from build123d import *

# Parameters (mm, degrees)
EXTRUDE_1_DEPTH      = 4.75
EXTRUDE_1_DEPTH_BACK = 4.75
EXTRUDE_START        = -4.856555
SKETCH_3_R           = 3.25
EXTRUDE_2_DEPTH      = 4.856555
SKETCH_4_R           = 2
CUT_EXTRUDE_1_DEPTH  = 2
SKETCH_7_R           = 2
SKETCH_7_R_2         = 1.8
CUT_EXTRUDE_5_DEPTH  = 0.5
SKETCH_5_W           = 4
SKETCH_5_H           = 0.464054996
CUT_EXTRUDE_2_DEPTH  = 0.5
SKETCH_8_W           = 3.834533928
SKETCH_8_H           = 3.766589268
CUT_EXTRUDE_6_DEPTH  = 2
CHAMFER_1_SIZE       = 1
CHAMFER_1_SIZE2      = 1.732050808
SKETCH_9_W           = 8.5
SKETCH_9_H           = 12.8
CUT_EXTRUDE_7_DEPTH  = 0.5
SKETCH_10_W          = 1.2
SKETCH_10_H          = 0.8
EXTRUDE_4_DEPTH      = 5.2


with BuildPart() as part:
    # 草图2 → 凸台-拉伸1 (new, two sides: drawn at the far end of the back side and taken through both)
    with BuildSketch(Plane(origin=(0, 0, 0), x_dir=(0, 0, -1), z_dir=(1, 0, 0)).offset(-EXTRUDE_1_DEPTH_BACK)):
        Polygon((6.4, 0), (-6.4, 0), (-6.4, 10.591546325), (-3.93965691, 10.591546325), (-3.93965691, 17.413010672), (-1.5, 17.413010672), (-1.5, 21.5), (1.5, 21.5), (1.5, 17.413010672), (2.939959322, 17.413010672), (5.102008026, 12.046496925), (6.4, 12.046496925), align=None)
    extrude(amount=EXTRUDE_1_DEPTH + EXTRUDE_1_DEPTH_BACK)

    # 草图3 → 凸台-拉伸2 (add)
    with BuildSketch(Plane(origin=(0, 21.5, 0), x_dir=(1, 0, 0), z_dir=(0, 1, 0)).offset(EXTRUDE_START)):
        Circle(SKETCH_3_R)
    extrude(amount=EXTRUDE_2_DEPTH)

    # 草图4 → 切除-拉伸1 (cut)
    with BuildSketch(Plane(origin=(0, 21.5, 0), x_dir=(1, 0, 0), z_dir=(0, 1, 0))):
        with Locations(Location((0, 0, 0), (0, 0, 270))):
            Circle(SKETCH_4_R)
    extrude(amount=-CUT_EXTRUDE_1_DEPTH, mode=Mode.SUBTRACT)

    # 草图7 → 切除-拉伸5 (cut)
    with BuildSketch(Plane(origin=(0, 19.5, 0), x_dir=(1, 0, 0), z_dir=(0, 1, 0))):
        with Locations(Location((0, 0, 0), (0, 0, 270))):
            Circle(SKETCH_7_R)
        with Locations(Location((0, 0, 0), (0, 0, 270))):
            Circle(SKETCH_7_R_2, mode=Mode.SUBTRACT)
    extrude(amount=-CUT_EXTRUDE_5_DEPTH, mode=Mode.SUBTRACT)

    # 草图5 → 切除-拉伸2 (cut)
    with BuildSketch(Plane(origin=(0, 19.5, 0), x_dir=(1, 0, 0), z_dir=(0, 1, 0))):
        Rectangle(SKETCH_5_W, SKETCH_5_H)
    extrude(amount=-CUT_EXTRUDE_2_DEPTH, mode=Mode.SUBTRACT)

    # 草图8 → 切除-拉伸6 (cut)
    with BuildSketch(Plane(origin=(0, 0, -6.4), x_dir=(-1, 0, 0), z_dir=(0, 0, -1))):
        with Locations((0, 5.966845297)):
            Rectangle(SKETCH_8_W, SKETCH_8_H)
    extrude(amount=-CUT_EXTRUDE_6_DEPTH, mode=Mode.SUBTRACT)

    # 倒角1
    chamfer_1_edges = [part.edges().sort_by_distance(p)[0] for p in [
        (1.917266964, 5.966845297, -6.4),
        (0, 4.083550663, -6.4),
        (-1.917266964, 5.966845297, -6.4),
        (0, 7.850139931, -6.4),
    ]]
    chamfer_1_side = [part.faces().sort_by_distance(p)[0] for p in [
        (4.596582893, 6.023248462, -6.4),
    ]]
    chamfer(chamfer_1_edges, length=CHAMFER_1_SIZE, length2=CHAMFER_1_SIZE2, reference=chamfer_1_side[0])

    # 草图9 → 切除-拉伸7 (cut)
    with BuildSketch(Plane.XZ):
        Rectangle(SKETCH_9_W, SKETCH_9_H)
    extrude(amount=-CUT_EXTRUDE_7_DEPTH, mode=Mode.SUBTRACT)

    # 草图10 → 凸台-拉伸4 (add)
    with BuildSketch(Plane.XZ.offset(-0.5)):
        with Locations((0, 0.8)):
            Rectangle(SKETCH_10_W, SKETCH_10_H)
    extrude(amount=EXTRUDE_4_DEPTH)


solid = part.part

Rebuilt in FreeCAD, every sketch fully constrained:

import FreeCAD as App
import Part
import Sketcher
from FreeCAD import Vector
Q = App.Units.Quantity


def edges_at(feature, points):
    """Names of the edges that pass closest to the given points."""
    edges = feature.Shape.Edges
    near = lambda p: min(range(len(edges)), key=lambda i: edges[i].distToShape(Part.Vertex(*p))[0])
    return sorted({f"Edge{near(p) + 1}" for p in points})

doc = App.newDocument("Part")
params = doc.addObject("Spreadsheet::Sheet", "Params")
for row, (alias, value) in enumerate([
    ("sketch1_height", "3 mm"),
    ("sketch1_height2", "12.8 mm"),
    ("pad1_length", "4.75 mm"),
    ("pad1_length2", "4.75 mm"),
    ("sketch2_diameter", "6.5 mm"),
    ("pad2_length", "4.856555 mm"),
    ("sketch3_diameter", "4 mm"),
    ("pocket1_length", "2 mm"),
    ("sketch4_diameter", "4 mm"),
    ("sketch4_diameter2", "3.6 mm"),
    ("pocket2_length", "0.5 mm"),
    ("sketch5_width", "4 mm"),
    ("pocket3_length", "0.5 mm"),
    ("pocket4_length", "2 mm"),
    ("chamfer_size", "1 mm"),
    ("chamfer_size2", "1.732051 mm"),
    ("sketch7_width", "8.5 mm"),
    ("sketch7_height", "12.8 mm"),
    ("pocket5_length", "0.5 mm"),
    ("sketch8_width", "1.2 mm"),
    ("sketch8_height", "0.8 mm"),
    ("pad3_length", "5.2 mm"),
], start=1):
    params.set(f"A{row}", alias)
    params.set(f"B{row}", "=" + value)
    params.setAlias(f"B{row}", alias)

body = doc.addObject("PartDesign::Body", "Body")

sketch1 = doc.addObject("Sketcher::SketchObject", "Sketch")
body.addObject(sketch1)
sketch1.AttachmentSupport = (doc.YZ_Plane, [""])
sketch1.MapMode = "FlatFace"
sketch1.addGeometry([
    Part.LineSegment(Vector(0, 6.4, 0), Vector(0, -6.4, 0)),
    Part.LineSegment(Vector(0, -6.4, 0), Vector(12.046497, -6.4, 0)),
    Part.LineSegment(Vector(12.046497, -6.4, 0), Vector(12.046497, -5.102008, 0)),
    Part.LineSegment(Vector(12.046497, -5.102008, 0), Vector(17.413011, -2.939959, 0)),
    Part.LineSegment(Vector(17.413011, -2.939959, 0), Vector(17.413011, -1.5, 0)),
    Part.LineSegment(Vector(17.413011, -1.5, 0), Vector(21.5, -1.5, 0)),
    Part.LineSegment(Vector(21.5, -1.5, 0), Vector(21.5, 1.5, 0)),
    Part.LineSegment(Vector(21.5, 1.5, 0), Vector(17.413011, 1.5, 0)),
    Part.LineSegment(Vector(17.413011, 1.5, 0), Vector(17.413011, 3.939657, 0)),
    Part.LineSegment(Vector(17.413011, 3.939657, 0), Vector(10.591546, 3.939657, 0)),
    Part.LineSegment(Vector(10.591546, 3.939657, 0), Vector(10.591546, 6.4, 0)),
    Part.LineSegment(Vector(10.591546, 6.4, 0), Vector(0, 6.4, 0)),
], False)
sketch1.addConstraint([
    Sketcher.Constraint("Coincident", 0, 2, 1, 1),
    Sketcher.Constraint("Coincident", 1, 2, 2, 1),
    Sketcher.Constraint("Coincident", 2, 2, 3, 1),
    Sketcher.Constraint("Coincident", 3, 2, 4, 1),
    Sketcher.Constraint("Coincident", 4, 2, 5, 1),
    Sketcher.Constraint("Coincident", 5, 2, 6, 1),
    Sketcher.Constraint("Coincident", 6, 2, 7, 1),
    Sketcher.Constraint("Coincident", 7, 2, 8, 1),
    Sketcher.Constraint("Coincident", 8, 2, 9, 1),
    Sketcher.Constraint("Coincident", 9, 2, 10, 1),
    Sketcher.Constraint("Coincident", 10, 2, 11, 1),
    Sketcher.Constraint("Coincident", 11, 2, 0, 1),
    Sketcher.Constraint("Vertical", 0),
    Sketcher.Constraint("Horizontal", 1),
    Sketcher.Constraint("Vertical", 2),
    Sketcher.Constraint("Vertical", 4),
    Sketcher.Constraint("Horizontal", 5),
    Sketcher.Constraint("Vertical", 6),
    Sketcher.Constraint("Horizontal", 7),
    Sketcher.Constraint("Vertical", 8),
    Sketcher.Constraint("Horizontal", 9),
    Sketcher.Constraint("Vertical", 10),
    Sketcher.Constraint("Horizontal", 11),
    Sketcher.Constraint("Symmetric", 0, 2, 11, 2, -1, 1),
    Sketcher.Constraint("Symmetric", 4, 2, 7, 2, -1),
    Sketcher.Constraint("DistanceY", 6, 1, 6, 2, Q("3 mm")),
    Sketcher.Constraint("DistanceY", 0, 2, 0, 1, Q("12.8 mm")),
    Sketcher.Constraint("DistanceX", -1, 1, 5, 2, Q("21.5 mm")),
    Sketcher.Constraint("DistanceX", 5, 1, 5, 2, Q("4.086989 mm")),
    Sketcher.Constraint("DistanceY", 2, 1, 2, 2, Q("1.297992 mm")),
    Sketcher.Constraint("DistanceY", 4, 1, 4, 2, Q("1.439959 mm")),
    Sketcher.Constraint("DistanceX", 1, 1, 1, 2, Q("12.046497 mm")),
    Sketcher.Constraint("DistanceX", 9, 2, 9, 1, Q("6.821464 mm")),
    Sketcher.Constraint("DistanceY", 8, 1, 8, 2, Q("2.439657 mm")),
])
sketch1.setExpression("Constraints[25]", "Params.sketch1_height")
sketch1.setExpression("Constraints[26]", "Params.sketch1_height2")
pad1 = doc.addObject("PartDesign::Pad", "Pad")
body.addObject(pad1)
pad1.Profile = sketch1
pad1.Type = "TwoLengths"
pad1.setExpression("Length", "Params.pad1_length")
pad1.setExpression("Length2", "Params.pad1_length2")

sketch2 = doc.addObject("Sketcher::SketchObject", "Sketch001")
body.addObject(sketch2)
sketch2.AttachmentSupport = (doc.XZ_Plane, [""])
sketch2.MapMode = "FlatFace"
sketch2.AttachmentOffset = App.Placement(Vector(0, 0, -16.643445), App.Rotation())
sketch2.addGeometry(Part.Circle(Vector(0, 0, 0), Vector(0, 0, 1), 3.25), False)
sketch2.addConstraint([
    Sketcher.Constraint("Coincident", 0, 3, -1, 1),
    Sketcher.Constraint("Diameter", 0, Q("6.5 mm")),
])
sketch2.setExpression("Constraints[1]", "Params.sketch2_diameter")
pad2 = doc.addObject("PartDesign::Pad", "Pad001")
body.addObject(pad2)
pad2.Profile = sketch2
pad2.setExpression("Length", "Params.pad2_length")
pad2.Reversed = True

sketch3 = doc.addObject("Sketcher::SketchObject", "Sketch002")
body.addObject(sketch3)
sketch3.AttachmentSupport = (doc.XZ_Plane, [""])
sketch3.MapMode = "FlatFace"
sketch3.AttachmentOffset = App.Placement(Vector(0, 0, -21.5), App.Rotation())
sketch3.addGeometry(Part.Circle(Vector(0, 0, 0), Vector(0, 0, 1), 2), False)
sketch3.addConstraint([
    Sketcher.Constraint("Coincident", 0, 3, -1, 1),
    Sketcher.Constraint("Diameter", 0, Q("4 mm")),
])
sketch3.setExpression("Constraints[1]", "Params.sketch3_diameter")
pocket1 = doc.addObject("PartDesign::Pocket", "Pocket")
body.addObject(pocket1)
pocket1.Profile = sketch3
pocket1.setExpression("Length", "Params.pocket1_length")
pocket1.Reversed = True

sketch4 = doc.addObject("Sketcher::SketchObject", "Sketch003")
body.addObject(sketch4)
sketch4.AttachmentSupport = (doc.XZ_Plane, [""])
sketch4.MapMode = "FlatFace"
sketch4.AttachmentOffset = App.Placement(Vector(0, 0, -19.5), App.Rotation())
sketch4.addGeometry([
    Part.Circle(Vector(0, 0, 0), Vector(0, 0, 1), 2),
    Part.Circle(Vector(0, 0, 0), Vector(0, 0, 1), 1.8),
], False)
sketch4.addConstraint([
    Sketcher.Constraint("Coincident", 0, 3, -1, 1),
    Sketcher.Constraint("Coincident", 1, 3, -1, 1),
    Sketcher.Constraint("Diameter", 0, Q("4 mm")),
    Sketcher.Constraint("Diameter", 1, Q("3.6 mm")),
])
sketch4.setExpression("Constraints[2]", "Params.sketch4_diameter")
sketch4.setExpression("Constraints[3]", "Params.sketch4_diameter2")
pocket2 = doc.addObject("PartDesign::Pocket", "Pocket001")
body.addObject(pocket2)
pocket2.Profile = sketch4
pocket2.setExpression("Length", "Params.pocket2_length")
pocket2.Reversed = True

sketch5 = doc.addObject("Sketcher::SketchObject", "Sketch004")
body.addObject(sketch5)
sketch5.AttachmentSupport = (doc.XZ_Plane, [""])
sketch5.MapMode = "FlatFace"
sketch5.AttachmentOffset = App.Placement(Vector(0, 0, -19.5), App.Rotation())
sketch5.addGeometry([
    Part.LineSegment(Vector(-2, -0.232027, 0), Vector(-2, 0.232027, 0)),
    Part.LineSegment(Vector(-2, 0.232027, 0), Vector(2, 0.232027, 0)),
    Part.LineSegment(Vector(2, 0.232027, 0), Vector(2, -0.232027, 0)),
    Part.LineSegment(Vector(2, -0.232027, 0), Vector(-2, -0.232027, 0)),
], False)
sketch5.addConstraint([
    Sketcher.Constraint("Coincident", 0, 2, 1, 1),
    Sketcher.Constraint("Coincident", 1, 2, 2, 1),
    Sketcher.Constraint("Coincident", 2, 2, 3, 1),
    Sketcher.Constraint("Coincident", 3, 2, 0, 1),
    Sketcher.Constraint("Vertical", 0),
    Sketcher.Constraint("Horizontal", 1),
    Sketcher.Constraint("Vertical", 2),
    Sketcher.Constraint("Horizontal", 3),
    Sketcher.Constraint("Symmetric", 0, 2, 2, 2, -1, 1),
    Sketcher.Constraint("DistanceX", 1, 1, 1, 2, Q("4 mm")),
    Sketcher.Constraint("DistanceY", 0, 1, 0, 2, Q("0.464055 mm")),
])
sketch5.setExpression("Constraints[9]", "Params.sketch5_width")
pocket3 = doc.addObject("PartDesign::Pocket", "Pocket002")
body.addObject(pocket3)
pocket3.Profile = sketch5
pocket3.setExpression("Length", "Params.pocket3_length")
pocket3.Reversed = True

sketch6 = doc.addObject("Sketcher::SketchObject", "Sketch005")
body.addObject(sketch6)
sketch6.AttachmentSupport = (doc.XY_Plane, [""])
sketch6.MapMode = "FlatFace"
sketch6.AttachmentOffset = App.Placement(Vector(0, 0, -6.4), App.Rotation())
sketch6.addGeometry([
    Part.LineSegment(Vector(1.917267, 7.85014, 0), Vector(1.917267, 4.083551, 0)),
    Part.LineSegment(Vector(1.917267, 4.083551, 0), Vector(-1.917267, 4.083551, 0)),
    Part.LineSegment(Vector(-1.917267, 4.083551, 0), Vector(-1.917267, 7.85014, 0)),
    Part.LineSegment(Vector(-1.917267, 7.85014, 0), Vector(1.917267, 7.85014, 0)),
], False)
sketch6.addConstraint([
    Sketcher.Constraint("Coincident", 0, 2, 1, 1),
    Sketcher.Constraint("Coincident", 1, 2, 2, 1),
    Sketcher.Constraint("Coincident", 2, 2, 3, 1),
    Sketcher.Constraint("Coincident", 3, 2, 0, 1),
    Sketcher.Constraint("Vertical", 0),
    Sketcher.Constraint("Horizontal", 1),
    Sketcher.Constraint("Vertical", 2),
    Sketcher.Constraint("Horizontal", 3),
    Sketcher.Constraint("DistanceY", 0, 2, 0, 1, Q("3.766589 mm")),
    Sketcher.Constraint("DistanceX", 1, 2, 1, 1, Q("3.834534 mm")),
    Sketcher.Constraint("DistanceY", -1, 1, 0, 2, Q("4.083551 mm")),
    Sketcher.Constraint("DistanceX", -1, 1, 0, 2, Q("1.917267 mm")),
])
pocket4 = doc.addObject("PartDesign::Pocket", "Pocket003")
body.addObject(pocket4)
pocket4.Profile = sketch6
pocket4.setExpression("Length", "Params.pocket4_length")
pocket4.Reversed = True
doc.recompute()

chamfer = doc.addObject("PartDesign::Chamfer", "Chamfer")
body.addObject(chamfer)
chamfer.Base = (pocket4, edges_at(pocket4, [
    (1.917, 5.967, -6.4),
    (0, 4.084, -6.4),
    (-1.917, 5.967, -6.4),
    (0, 7.85, -6.4),
]))
chamfer.ChamferType = "Two distances"
chamfer.setExpression("Size", "Params.chamfer_size")
chamfer.setExpression("Size2", "Params.chamfer_size2")

sketch7 = doc.addObject("Sketcher::SketchObject", "Sketch006")
body.addObject(sketch7)
sketch7.AttachmentSupport = (doc.XZ_Plane, [""])
sketch7.MapMode = "FlatFace"
sketch7.addGeometry([
    Part.LineSegment(Vector(-4.25, 6.4, 0), Vector(-4.25, -6.4, 0)),
    Part.LineSegment(Vector(-4.25, -6.4, 0), Vector(4.25, -6.4, 0)),
    Part.LineSegment(Vector(4.25, -6.4, 0), Vector(4.25, 6.4, 0)),
    Part.LineSegment(Vector(4.25, 6.4, 0), Vector(-4.25, 6.4, 0)),
], False)
sketch7.addConstraint([
    Sketcher.Constraint("Coincident", 0, 2, 1, 1),
    Sketcher.Constraint("Coincident", 1, 2, 2, 1),
    Sketcher.Constraint("Coincident", 2, 2, 3, 1),
    Sketcher.Constraint("Coincident", 3, 2, 0, 1),
    Sketcher.Constraint("Vertical", 0),
    Sketcher.Constraint("Horizontal", 1),
    Sketcher.Constraint("Vertical", 2),
    Sketcher.Constraint("Horizontal", 3),
    Sketcher.Constraint("Symmetric", 0, 2, 2, 2, -1, 1),
    Sketcher.Constraint("DistanceX", 1, 1, 1, 2, Q("8.5 mm")),
    Sketcher.Constraint("DistanceY", 0, 2, 0, 1, Q("12.8 mm")),
])
sketch7.setExpression("Constraints[9]", "Params.sketch7_width")
sketch7.setExpression("Constraints[10]", "Params.sketch7_height")
pocket5 = doc.addObject("PartDesign::Pocket", "Pocket004")
body.addObject(pocket5)
pocket5.Profile = sketch7
pocket5.setExpression("Length", "Params.pocket5_length")

sketch8 = doc.addObject("Sketcher::SketchObject", "Sketch007")
body.addObject(sketch8)
sketch8.AttachmentSupport = (doc.XZ_Plane, [""])
sketch8.MapMode = "FlatFace"
sketch8.AttachmentOffset = App.Placement(Vector(0, 0, -0.5), App.Rotation())
sketch8.addGeometry([
    Part.LineSegment(Vector(-0.6, 1.2, 0), Vector(-0.6, 0.4, 0)),
    Part.LineSegment(Vector(-0.6, 0.4, 0), Vector(0.6, 0.4, 0)),
    Part.LineSegment(Vector(0.6, 0.4, 0), Vector(0.6, 1.2, 0)),
    Part.LineSegment(Vector(0.6, 1.2, 0), Vector(-0.6, 1.2, 0)),
], False)
sketch8.addConstraint([
    Sketcher.Constraint("Coincident", 0, 2, 1, 1),
    Sketcher.Constraint("Coincident", 1, 2, 2, 1),
    Sketcher.Constraint("Coincident", 2, 2, 3, 1),
    Sketcher.Constraint("Coincident", 3, 2, 0, 1),
    Sketcher.Constraint("Vertical", 0),
    Sketcher.Constraint("Horizontal", 1),
    Sketcher.Constraint("Vertical", 2),
    Sketcher.Constraint("Horizontal", 3),
    Sketcher.Constraint("DistanceX", 1, 1, 1, 2, Q("1.2 mm")),
    Sketcher.Constraint("DistanceY", 0, 2, 0, 1, Q("0.8 mm")),
    Sketcher.Constraint("DistanceX", 0, 2, -1, 1, Q("0.6 mm")),
    Sketcher.Constraint("DistanceY", -1, 1, 0, 2, Q("0.4 mm")),
])
sketch8.setExpression("Constraints[8]", "Params.sketch8_width")
sketch8.setExpression("Constraints[9]", "Params.sketch8_height")
pad3 = doc.addObject("PartDesign::Pad", "Pad002")
body.addObject(pad3)
pad3.Profile = sketch8
pad3.setExpression("Length", "Params.pad3_length")

doc.recompute()
